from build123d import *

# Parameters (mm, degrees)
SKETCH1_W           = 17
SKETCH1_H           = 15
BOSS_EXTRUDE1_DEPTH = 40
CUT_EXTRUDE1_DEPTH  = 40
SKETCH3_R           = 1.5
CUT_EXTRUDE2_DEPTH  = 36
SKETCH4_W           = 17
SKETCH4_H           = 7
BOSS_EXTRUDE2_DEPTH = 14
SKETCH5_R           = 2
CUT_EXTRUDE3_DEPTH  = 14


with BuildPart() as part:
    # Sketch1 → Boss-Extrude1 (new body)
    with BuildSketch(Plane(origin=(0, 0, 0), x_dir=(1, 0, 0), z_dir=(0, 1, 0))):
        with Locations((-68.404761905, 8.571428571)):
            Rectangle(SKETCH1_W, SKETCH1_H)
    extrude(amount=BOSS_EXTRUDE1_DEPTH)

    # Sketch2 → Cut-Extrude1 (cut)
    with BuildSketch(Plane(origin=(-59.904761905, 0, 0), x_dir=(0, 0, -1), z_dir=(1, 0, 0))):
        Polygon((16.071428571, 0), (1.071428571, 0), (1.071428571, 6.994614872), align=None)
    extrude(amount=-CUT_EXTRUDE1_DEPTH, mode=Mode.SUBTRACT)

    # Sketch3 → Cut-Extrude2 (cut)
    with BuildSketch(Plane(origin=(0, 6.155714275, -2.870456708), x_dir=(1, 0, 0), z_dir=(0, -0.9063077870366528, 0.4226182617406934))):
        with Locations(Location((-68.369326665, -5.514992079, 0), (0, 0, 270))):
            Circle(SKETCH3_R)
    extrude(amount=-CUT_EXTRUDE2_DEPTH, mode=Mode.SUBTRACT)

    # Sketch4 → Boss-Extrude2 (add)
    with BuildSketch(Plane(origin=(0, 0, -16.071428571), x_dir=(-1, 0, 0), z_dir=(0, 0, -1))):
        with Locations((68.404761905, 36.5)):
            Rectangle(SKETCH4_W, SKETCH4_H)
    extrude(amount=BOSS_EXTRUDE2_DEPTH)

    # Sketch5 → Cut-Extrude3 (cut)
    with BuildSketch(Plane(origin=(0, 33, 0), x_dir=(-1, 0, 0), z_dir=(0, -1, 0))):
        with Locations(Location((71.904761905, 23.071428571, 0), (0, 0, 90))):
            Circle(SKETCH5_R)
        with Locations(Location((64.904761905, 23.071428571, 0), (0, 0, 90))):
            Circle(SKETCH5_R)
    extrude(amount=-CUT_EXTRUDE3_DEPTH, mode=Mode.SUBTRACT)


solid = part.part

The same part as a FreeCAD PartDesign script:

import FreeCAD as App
import Part
import Sketcher

V = App.Vector
Q = App.Units.Quantity

doc = App.newDocument("Part")
body = doc.addObject("PartDesign::Body", "Body")

# Sketch on XZ plane
sketch1 = body.newObject("Sketcher::SketchObject", "Sketch")
sketch1.AttachmentSupport = (doc.getObject("XZ_Plane"), [""])
sketch1.MapMode = "FlatFace"
sketch1.addGeometry(Part.LineSegment(V(-77, -16, 0), V(-77, -1, 0)), False)
sketch1.addGeometry(Part.LineSegment(V(-77, -1, 0), V(-60, -1, 0)), False)
sketch1.addGeometry(Part.LineSegment(V(-60, -1, 0), V(-60, -16, 0)), False)
sketch1.addGeometry(Part.LineSegment(V(-60, -16, 0), V(-77, -16, 0)), False)
sketch1.addConstraint(Sketcher.Constraint("Coincident", 0, 2, 1, 1))
sketch1.addConstraint(Sketcher.Constraint("Coincident", 1, 2, 2, 1))
sketch1.addConstraint(Sketcher.Constraint("Coincident", 2, 2, 3, 1))
sketch1.addConstraint(Sketcher.Constraint("Coincident", 3, 2, 0, 1))
sketch1.addConstraint(Sketcher.Constraint("Vertical", 0))
sketch1.addConstraint(Sketcher.Constraint("Horizontal", 1))
sketch1.addConstraint(Sketcher.Constraint("Vertical", 2))
sketch1.addConstraint(Sketcher.Constraint("Horizontal", 3))
sketch1.addConstraint(Sketcher.Constraint("DistanceX", 1, 1, 1, 2, Q("17 mm")))
sketch1.addConstraint(Sketcher.Constraint("DistanceY", 0, 1, 0, 2, Q("15 mm")))
sketch1.addConstraint(Sketcher.Constraint("DistanceX", 0, 2, -1, 1, Q("76.904762 mm")))
sketch1.addConstraint(Sketcher.Constraint("DistanceY", 0, 2, -1, 1, Q("1.071429 mm")))
pad1 = body.newObject("PartDesign::Pad", "Pad")
pad1.Profile = sketch1
pad1.Length = 40
pad1.Reversed = True

# Sketch on YZ plane
sketch2 = body.newObject("Sketcher::SketchObject", "Sketch001")
sketch2.AttachmentSupport = (doc.getObject("YZ_Plane"), [""])
sketch2.MapMode = "FlatFace"
sketch2.AttachmentOffset = App.Placement(V(0, 0, -59.904762), App.Rotation())
sketch2.addGeometry(Part.LineSegment(V(0, -1, 0), V(0, -16, 0)), False)
sketch2.addGeometry(Part.LineSegment(V(0, -16, 0), V(7, -1, 0)), False)
sketch2.addGeometry(Part.LineSegment(V(7, -1, 0), V(0, -1, 0)), False)
sketch2.addConstraint(Sketcher.Constraint("Coincident", 0, 2, 1, 1))
sketch2.addConstraint(Sketcher.Constraint("Coincident", 1, 2, 2, 1))
sketch2.addConstraint(Sketcher.Constraint("Coincident", 2, 2, 0, 1))
sketch2.addConstraint(Sketcher.Constraint("Vertical", 0))
sketch2.addConstraint(Sketcher.Constraint("Horizontal", 2))
sketch2.addConstraint(Sketcher.Constraint("PointOnObject", 0, 2, -2))
sketch2.addConstraint(Sketcher.Constraint("DistanceY", 0, 2, 0, 1, Q("15 mm")))
sketch2.addConstraint(Sketcher.Constraint("Angle", 1, Q("65 deg")))
sketch2.addConstraint(Sketcher.Constraint("DistanceY", 0, 2, -1, 1, Q("16.071429 mm")))
pocket1 = body.newObject("PartDesign::Pocket", "Pocket")
pocket1.Profile = sketch2
pocket1.Length = 40

# Sketch on an angled plane
sketch3 = body.newObject("Sketcher::SketchObject", "Sketch002")
sketch3.Placement = App.Placement(V(0, 6.155714, -2.870457), App.Rotation(V(1, 0, 0), V(0, 0.422618262, 0.906307787), V(0, -0.906307787, 0.422618262), "ZXY"))
sketch3.addGeometry(Part.Circle(V(-68.4, -5.5, 0), V(0, 0, 1), 1.5), False)
sketch3.addConstraint(Sketcher.Constraint("Diameter", 0, Q("3 mm")))
sketch3.addConstraint(Sketcher.Constraint("DistanceX", 0, 3, -1, 1, Q("68.369327 mm")))
sketch3.addConstraint(Sketcher.Constraint("DistanceY", 0, 3, -1, 1, Q("5.514992 mm")))
pocket2 = body.newObject("PartDesign::Pocket", "Pocket001")
pocket2.Profile = sketch3
pocket2.Length = 36

# Sketch on XY plane
sketch4 = body.newObject("Sketcher::SketchObject", "Sketch003")
sketch4.AttachmentSupport = (doc.getObject("XY_Plane"), [""])
sketch4.MapMode = "FlatFace"
sketch4.AttachmentOffset = App.Placement(V(0, 0, -16.071429), App.Rotation())
sketch4.addGeometry(Part.LineSegment(V(-60, 40, 0), V(-60, 33, 0)), False)
sketch4.addGeometry(Part.LineSegment(V(-60, 33, 0), V(-77, 33, 0)), False)
sketch4.addGeometry(Part.LineSegment(V(-77, 33, 0), V(-77, 40, 0)), False)
sketch4.addGeometry(Part.LineSegment(V(-77, 40, 0), V(-60, 40, 0)), False)
sketch4.addConstraint(Sketcher.Constraint("Coincident", 0, 2, 1, 1))
sketch4.addConstraint(Sketcher.Constraint("Coincident", 1, 2, 2, 1))
sketch4.addConstraint(Sketcher.Constraint("Coincident", 2, 2, 3, 1))
sketch4.addConstraint(Sketcher.Constraint("Coincident", 3, 2, 0, 1))
sketch4.addConstraint(Sketcher.Constraint("Vertical", 0))
sketch4.addConstraint(Sketcher.Constraint("Horizontal", 1))
sketch4.addConstraint(Sketcher.Constraint("Vertical", 2))
sketch4.addConstraint(Sketcher.Constraint("Horizontal", 3))
sketch4.addConstraint(Sketcher.Constraint("DistanceX", 1, 2, 1, 1, Q("17 mm")))
sketch4.addConstraint(Sketcher.Constraint("DistanceY", 0, 2, 0, 1, Q("7 mm")))
sketch4.addConstraint(Sketcher.Constraint("DistanceY", -1, 1, 0, 2, Q("33 mm")))
sketch4.addConstraint(Sketcher.Constraint("DistanceX", 0, 2, -1, 1, Q("59.904762 mm")))
pad2 = body.newObject("PartDesign::Pad", "Pad001")
pad2.Profile = sketch4
pad2.Length = 14
pad2.Reversed = True

# Sketch on XZ plane
sketch5 = body.newObject("Sketcher::SketchObject", "Sketch004")
sketch5.AttachmentSupport = (doc.getObject("XZ_Plane"), [""])
sketch5.MapMode = "FlatFace"
sketch5.AttachmentOffset = App.Placement(V(0, 0, -33), App.Rotation())
sketch5.addGeometry(Part.Circle(V(-71.9, -23.1, 0), V(0, 0, 1), 2), False)
sketch5.addGeometry(Part.Circle(V(-64.9, -23.1, 0), V(0, 0, 1), 2), False)
sketch5.addConstraint(Sketcher.Constraint("Equal", 0, 1))
sketch5.addConstraint(Sketcher.Constraint("Horizontal", 0, 3, 1, 3))
sketch5.addConstraint(Sketcher.Constraint("Diameter", 0, Q("4 mm")))
sketch5.addConstraint(Sketcher.Constraint("DistanceX", 0, 3, 1, 3, Q("7 mm")))
sketch5.addConstraint(Sketcher.Constraint("DistanceX", 0, 3, -1, 1, Q("71.904762 mm")))
sketch5.addConstraint(Sketcher.Constraint("DistanceY", 0, 3, -1, 1, Q("23.071429 mm")))
pocket3 = body.newObject("PartDesign::Pocket", "Pocket002")
pocket3.Profile = sketch5
pocket3.Length = 14

doc.recompute()
